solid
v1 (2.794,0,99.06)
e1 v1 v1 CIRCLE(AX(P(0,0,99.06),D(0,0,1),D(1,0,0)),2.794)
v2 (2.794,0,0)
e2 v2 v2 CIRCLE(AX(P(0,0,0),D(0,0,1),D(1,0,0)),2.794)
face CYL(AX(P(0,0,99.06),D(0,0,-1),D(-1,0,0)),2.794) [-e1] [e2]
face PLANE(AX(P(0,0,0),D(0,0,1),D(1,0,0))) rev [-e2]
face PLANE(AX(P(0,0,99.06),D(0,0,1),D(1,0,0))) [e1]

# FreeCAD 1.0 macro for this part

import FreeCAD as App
import Part
import Sketcher
from FreeCAD import Vector
Q = App.Units.Quantity

doc = App.newDocument("Part")
body = doc.addObject("PartDesign::Body", "Body")

# Sketch on XY plane
sketch1 = body.newObject("Sketcher::SketchObject", "Sketch")
sketch1.AttachmentSupport = (doc.getObject("XY_Plane"), [""])
sketch1.MapMode = "FlatFace"
sketch1.addGeometry(Part.Circle(Vector(0, 0, 0), Vector(0, 0, 1), 2.794), False)
sketch1.addConstraint([
    Sketcher.Constraint("Coincident", 0, 3, -1, 1),
    Sketcher.Constraint("Diameter", 0, Q("0.22 in")),
])
pad1 = body.newObject("PartDesign::Pad", "Pad")
pad1.Profile = sketch1
pad1.Length = Q("3.9 in")

doc.recompute()
